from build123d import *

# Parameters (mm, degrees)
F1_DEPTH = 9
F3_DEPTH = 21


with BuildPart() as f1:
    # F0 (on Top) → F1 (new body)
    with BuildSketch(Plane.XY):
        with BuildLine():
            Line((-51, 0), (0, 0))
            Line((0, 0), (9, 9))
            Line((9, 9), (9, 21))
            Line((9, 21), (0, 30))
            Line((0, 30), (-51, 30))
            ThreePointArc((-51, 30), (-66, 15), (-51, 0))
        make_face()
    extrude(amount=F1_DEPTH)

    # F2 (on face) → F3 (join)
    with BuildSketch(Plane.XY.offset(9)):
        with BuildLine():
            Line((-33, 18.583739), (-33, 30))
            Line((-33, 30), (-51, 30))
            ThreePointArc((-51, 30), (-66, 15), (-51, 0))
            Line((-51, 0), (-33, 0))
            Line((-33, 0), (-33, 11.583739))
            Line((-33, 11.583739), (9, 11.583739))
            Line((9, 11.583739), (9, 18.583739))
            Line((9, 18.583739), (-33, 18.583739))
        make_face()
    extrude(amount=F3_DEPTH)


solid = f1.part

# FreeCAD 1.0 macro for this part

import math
import FreeCAD as App
import Part
import Sketcher

V = App.Vector

doc = App.newDocument("Part")
params = doc.addObject("Spreadsheet::Sheet", "Params")
for row, (alias, value) in enumerate([
    ("sketch1_radius", "15 mm"),
    ("sketch1_width", "51 mm"),
    ("sketch1_height", "12 mm"),
    ("pad1_length", "9 mm"),
    ("sketch2_radius", "15 mm"),
    ("sketch2_width", "18 mm"),
    ("sketch2_width2", "42 mm"),
    ("sketch2_height", "7 mm"),
    ("pad2_length", "21 mm"),
], start=1):
    params.set(f"A{row}", alias)
    params.set(f"B{row}", "=" + value)
    params.setAlias(f"B{row}", alias)

body = doc.addObject("PartDesign::Body", "Body")

sketch1 = body.newObject("Sketcher::SketchObject", "Sketch")
sketch1.AttachmentSupport = (doc.getObject("XY_Plane"), [""])
sketch1.MapMode = "FlatFace"
sketch1.addGeometry([
    Part.LineSegment(V(-51, 0, 0), V(0, 0, 0)),
    Part.LineSegment(V(0, 0, 0), V(9, 9, 0)),
    Part.LineSegment(V(9, 9, 0), V(9, 21, 0)),
    Part.LineSegment(V(9, 21, 0), V(0, 30, 0)),
    Part.LineSegment(V(0, 30, 0), V(-51, 30, 0)),
    Part.ArcOfCircle(Part.Circle(V(-51, 15, 0), V(0, 0, 1), 15), math.radians(90), math.radians(270)),
], False)
sketch1.addConstraint([
    Sketcher.Constraint("Coincident", 0, 2, 1, 1),
    Sketcher.Constraint("Coincident", 1, 2, 2, 1),
    Sketcher.Constraint("Coincident", 2, 2, 3, 1),
    Sketcher.Constraint("Coincident", 3, 2, 4, 1),
    Sketcher.Constraint("Tangent", 4, 2, 5, 1),
    Sketcher.Constraint("Tangent", 5, 2, 0, 1),
    Sketcher.Constraint("Horizontal", 0),
    Sketcher.Constraint("Vertical", 2),
    Sketcher.Constraint("Horizontal", 4),
    Sketcher.Constraint("Coincident", 0, 2, -1, 1),
    Sketcher.Constraint("PointOnObject", 3, 2, -2),
    Sketcher.Constraint("Perpendicular", 1, 3),
    Sketcher.Constraint("Equal", 1, 3),
    Sketcher.Constraint("Radius", 5, 15.0),
    Sketcher.Constraint("DistanceX", 0, 1, 0, 2, 51.0),
    Sketcher.Constraint("DistanceY", 2, 1, 2, 2, 12.0),
])
sketch1.setExpression("Constraints[13]", "Params.sketch1_radius")
sketch1.setExpression("Constraints[14]", "Params.sketch1_width")
sketch1.setExpression("Constraints[15]", "Params.sketch1_height")
pad1 = body.newObject("PartDesign::Pad", "Pad")
pad1.Profile = sketch1
pad1.setExpression("Length", "Params.pad1_length")

sketch2 = body.newObject("Sketcher::SketchObject", "Sketch001")
sketch2.AttachmentSupport = (doc.getObject("XY_Plane"), [""])
sketch2.MapMode = "FlatFace"
sketch2.AttachmentOffset = App.Placement(V(0, 0, 9), App.Rotation())
sketch2.addGeometry([
    Part.LineSegment(V(-33, 19, 0), V(-33, 30, 0)),
    Part.LineSegment(V(-33, 30, 0), V(-51, 30, 0)),
    Part.ArcOfCircle(Part.Circle(V(-51, 15, 0), V(0, 0, 1), 15), math.radians(90), math.radians(270)),
    Part.LineSegment(V(-51, 0, 0), V(-33, 0, 0)),
    Part.LineSegment(V(-33, 0, 0), V(-33, 12, 0)),
    Part.LineSegment(V(-33, 12, 0), V(9, 12, 0)),
    Part.LineSegment(V(9, 12, 0), V(9, 19, 0)),
    Part.LineSegment(V(9, 19, 0), V(-33, 19, 0)),
], False)
sketch2.addConstraint([
    Sketcher.Constraint("Coincident", 0, 2, 1, 1),
    Sketcher.Constraint("Tangent", 1, 2, 2, 1),
    Sketcher.Constraint("Tangent", 2, 2, 3, 1),
    Sketcher.Constraint("Coincident", 3, 2, 4, 1),
    Sketcher.Constraint("Coincident", 4, 2, 5, 1),
    Sketcher.Constraint("Coincident", 5, 2, 6, 1),
    Sketcher.Constraint("Coincident", 6, 2, 7, 1),
    Sketcher.Constraint("Coincident", 7, 2, 0, 1),
    Sketcher.Constraint("Vertical", 0),
    Sketcher.Constraint("Horizontal", 1),
    Sketcher.Constraint("Horizontal", 3),
    Sketcher.Constraint("Vertical", 4),
    Sketcher.Constraint("Horizontal", 5),
    Sketcher.Constraint("Vertical", 6),
    Sketcher.Constraint("Horizontal", 7),
    Sketcher.Constraint("PointOnObject", 2, 2, -1),
    Sketcher.Constraint("Vertical", 0, 2, 3, 2),
    Sketcher.Constraint("Radius", 2, 15.0),
    Sketcher.Constraint("DistanceX", 1, 2, 1, 1, 18.0),
    Sketcher.Constraint("DistanceX", 5, 1, 5, 2, 42.0),
    Sketcher.Constraint("DistanceY", 6, 1, 6, 2, 7.0),
    Sketcher.Constraint("DistanceX", 2, 3, -1, 1, 51.0),
    Sketcher.Constraint("DistanceY", 0, 1, 0, 2, 11.416261),
])
sketch2.setExpression("Constraints[17]", "Params.sketch2_radius")
sketch2.setExpression("Constraints[18]", "Params.sketch2_width")
sketch2.setExpression("Constraints[19]", "Params.sketch2_width2")
sketch2.setExpression("Constraints[20]", "Params.sketch2_height")
pad2 = body.newObject("PartDesign::Pad", "Pad001")
pad2.Profile = sketch2
pad2.setExpression("Length", "Params.pad2_length")

doc.recompute()
